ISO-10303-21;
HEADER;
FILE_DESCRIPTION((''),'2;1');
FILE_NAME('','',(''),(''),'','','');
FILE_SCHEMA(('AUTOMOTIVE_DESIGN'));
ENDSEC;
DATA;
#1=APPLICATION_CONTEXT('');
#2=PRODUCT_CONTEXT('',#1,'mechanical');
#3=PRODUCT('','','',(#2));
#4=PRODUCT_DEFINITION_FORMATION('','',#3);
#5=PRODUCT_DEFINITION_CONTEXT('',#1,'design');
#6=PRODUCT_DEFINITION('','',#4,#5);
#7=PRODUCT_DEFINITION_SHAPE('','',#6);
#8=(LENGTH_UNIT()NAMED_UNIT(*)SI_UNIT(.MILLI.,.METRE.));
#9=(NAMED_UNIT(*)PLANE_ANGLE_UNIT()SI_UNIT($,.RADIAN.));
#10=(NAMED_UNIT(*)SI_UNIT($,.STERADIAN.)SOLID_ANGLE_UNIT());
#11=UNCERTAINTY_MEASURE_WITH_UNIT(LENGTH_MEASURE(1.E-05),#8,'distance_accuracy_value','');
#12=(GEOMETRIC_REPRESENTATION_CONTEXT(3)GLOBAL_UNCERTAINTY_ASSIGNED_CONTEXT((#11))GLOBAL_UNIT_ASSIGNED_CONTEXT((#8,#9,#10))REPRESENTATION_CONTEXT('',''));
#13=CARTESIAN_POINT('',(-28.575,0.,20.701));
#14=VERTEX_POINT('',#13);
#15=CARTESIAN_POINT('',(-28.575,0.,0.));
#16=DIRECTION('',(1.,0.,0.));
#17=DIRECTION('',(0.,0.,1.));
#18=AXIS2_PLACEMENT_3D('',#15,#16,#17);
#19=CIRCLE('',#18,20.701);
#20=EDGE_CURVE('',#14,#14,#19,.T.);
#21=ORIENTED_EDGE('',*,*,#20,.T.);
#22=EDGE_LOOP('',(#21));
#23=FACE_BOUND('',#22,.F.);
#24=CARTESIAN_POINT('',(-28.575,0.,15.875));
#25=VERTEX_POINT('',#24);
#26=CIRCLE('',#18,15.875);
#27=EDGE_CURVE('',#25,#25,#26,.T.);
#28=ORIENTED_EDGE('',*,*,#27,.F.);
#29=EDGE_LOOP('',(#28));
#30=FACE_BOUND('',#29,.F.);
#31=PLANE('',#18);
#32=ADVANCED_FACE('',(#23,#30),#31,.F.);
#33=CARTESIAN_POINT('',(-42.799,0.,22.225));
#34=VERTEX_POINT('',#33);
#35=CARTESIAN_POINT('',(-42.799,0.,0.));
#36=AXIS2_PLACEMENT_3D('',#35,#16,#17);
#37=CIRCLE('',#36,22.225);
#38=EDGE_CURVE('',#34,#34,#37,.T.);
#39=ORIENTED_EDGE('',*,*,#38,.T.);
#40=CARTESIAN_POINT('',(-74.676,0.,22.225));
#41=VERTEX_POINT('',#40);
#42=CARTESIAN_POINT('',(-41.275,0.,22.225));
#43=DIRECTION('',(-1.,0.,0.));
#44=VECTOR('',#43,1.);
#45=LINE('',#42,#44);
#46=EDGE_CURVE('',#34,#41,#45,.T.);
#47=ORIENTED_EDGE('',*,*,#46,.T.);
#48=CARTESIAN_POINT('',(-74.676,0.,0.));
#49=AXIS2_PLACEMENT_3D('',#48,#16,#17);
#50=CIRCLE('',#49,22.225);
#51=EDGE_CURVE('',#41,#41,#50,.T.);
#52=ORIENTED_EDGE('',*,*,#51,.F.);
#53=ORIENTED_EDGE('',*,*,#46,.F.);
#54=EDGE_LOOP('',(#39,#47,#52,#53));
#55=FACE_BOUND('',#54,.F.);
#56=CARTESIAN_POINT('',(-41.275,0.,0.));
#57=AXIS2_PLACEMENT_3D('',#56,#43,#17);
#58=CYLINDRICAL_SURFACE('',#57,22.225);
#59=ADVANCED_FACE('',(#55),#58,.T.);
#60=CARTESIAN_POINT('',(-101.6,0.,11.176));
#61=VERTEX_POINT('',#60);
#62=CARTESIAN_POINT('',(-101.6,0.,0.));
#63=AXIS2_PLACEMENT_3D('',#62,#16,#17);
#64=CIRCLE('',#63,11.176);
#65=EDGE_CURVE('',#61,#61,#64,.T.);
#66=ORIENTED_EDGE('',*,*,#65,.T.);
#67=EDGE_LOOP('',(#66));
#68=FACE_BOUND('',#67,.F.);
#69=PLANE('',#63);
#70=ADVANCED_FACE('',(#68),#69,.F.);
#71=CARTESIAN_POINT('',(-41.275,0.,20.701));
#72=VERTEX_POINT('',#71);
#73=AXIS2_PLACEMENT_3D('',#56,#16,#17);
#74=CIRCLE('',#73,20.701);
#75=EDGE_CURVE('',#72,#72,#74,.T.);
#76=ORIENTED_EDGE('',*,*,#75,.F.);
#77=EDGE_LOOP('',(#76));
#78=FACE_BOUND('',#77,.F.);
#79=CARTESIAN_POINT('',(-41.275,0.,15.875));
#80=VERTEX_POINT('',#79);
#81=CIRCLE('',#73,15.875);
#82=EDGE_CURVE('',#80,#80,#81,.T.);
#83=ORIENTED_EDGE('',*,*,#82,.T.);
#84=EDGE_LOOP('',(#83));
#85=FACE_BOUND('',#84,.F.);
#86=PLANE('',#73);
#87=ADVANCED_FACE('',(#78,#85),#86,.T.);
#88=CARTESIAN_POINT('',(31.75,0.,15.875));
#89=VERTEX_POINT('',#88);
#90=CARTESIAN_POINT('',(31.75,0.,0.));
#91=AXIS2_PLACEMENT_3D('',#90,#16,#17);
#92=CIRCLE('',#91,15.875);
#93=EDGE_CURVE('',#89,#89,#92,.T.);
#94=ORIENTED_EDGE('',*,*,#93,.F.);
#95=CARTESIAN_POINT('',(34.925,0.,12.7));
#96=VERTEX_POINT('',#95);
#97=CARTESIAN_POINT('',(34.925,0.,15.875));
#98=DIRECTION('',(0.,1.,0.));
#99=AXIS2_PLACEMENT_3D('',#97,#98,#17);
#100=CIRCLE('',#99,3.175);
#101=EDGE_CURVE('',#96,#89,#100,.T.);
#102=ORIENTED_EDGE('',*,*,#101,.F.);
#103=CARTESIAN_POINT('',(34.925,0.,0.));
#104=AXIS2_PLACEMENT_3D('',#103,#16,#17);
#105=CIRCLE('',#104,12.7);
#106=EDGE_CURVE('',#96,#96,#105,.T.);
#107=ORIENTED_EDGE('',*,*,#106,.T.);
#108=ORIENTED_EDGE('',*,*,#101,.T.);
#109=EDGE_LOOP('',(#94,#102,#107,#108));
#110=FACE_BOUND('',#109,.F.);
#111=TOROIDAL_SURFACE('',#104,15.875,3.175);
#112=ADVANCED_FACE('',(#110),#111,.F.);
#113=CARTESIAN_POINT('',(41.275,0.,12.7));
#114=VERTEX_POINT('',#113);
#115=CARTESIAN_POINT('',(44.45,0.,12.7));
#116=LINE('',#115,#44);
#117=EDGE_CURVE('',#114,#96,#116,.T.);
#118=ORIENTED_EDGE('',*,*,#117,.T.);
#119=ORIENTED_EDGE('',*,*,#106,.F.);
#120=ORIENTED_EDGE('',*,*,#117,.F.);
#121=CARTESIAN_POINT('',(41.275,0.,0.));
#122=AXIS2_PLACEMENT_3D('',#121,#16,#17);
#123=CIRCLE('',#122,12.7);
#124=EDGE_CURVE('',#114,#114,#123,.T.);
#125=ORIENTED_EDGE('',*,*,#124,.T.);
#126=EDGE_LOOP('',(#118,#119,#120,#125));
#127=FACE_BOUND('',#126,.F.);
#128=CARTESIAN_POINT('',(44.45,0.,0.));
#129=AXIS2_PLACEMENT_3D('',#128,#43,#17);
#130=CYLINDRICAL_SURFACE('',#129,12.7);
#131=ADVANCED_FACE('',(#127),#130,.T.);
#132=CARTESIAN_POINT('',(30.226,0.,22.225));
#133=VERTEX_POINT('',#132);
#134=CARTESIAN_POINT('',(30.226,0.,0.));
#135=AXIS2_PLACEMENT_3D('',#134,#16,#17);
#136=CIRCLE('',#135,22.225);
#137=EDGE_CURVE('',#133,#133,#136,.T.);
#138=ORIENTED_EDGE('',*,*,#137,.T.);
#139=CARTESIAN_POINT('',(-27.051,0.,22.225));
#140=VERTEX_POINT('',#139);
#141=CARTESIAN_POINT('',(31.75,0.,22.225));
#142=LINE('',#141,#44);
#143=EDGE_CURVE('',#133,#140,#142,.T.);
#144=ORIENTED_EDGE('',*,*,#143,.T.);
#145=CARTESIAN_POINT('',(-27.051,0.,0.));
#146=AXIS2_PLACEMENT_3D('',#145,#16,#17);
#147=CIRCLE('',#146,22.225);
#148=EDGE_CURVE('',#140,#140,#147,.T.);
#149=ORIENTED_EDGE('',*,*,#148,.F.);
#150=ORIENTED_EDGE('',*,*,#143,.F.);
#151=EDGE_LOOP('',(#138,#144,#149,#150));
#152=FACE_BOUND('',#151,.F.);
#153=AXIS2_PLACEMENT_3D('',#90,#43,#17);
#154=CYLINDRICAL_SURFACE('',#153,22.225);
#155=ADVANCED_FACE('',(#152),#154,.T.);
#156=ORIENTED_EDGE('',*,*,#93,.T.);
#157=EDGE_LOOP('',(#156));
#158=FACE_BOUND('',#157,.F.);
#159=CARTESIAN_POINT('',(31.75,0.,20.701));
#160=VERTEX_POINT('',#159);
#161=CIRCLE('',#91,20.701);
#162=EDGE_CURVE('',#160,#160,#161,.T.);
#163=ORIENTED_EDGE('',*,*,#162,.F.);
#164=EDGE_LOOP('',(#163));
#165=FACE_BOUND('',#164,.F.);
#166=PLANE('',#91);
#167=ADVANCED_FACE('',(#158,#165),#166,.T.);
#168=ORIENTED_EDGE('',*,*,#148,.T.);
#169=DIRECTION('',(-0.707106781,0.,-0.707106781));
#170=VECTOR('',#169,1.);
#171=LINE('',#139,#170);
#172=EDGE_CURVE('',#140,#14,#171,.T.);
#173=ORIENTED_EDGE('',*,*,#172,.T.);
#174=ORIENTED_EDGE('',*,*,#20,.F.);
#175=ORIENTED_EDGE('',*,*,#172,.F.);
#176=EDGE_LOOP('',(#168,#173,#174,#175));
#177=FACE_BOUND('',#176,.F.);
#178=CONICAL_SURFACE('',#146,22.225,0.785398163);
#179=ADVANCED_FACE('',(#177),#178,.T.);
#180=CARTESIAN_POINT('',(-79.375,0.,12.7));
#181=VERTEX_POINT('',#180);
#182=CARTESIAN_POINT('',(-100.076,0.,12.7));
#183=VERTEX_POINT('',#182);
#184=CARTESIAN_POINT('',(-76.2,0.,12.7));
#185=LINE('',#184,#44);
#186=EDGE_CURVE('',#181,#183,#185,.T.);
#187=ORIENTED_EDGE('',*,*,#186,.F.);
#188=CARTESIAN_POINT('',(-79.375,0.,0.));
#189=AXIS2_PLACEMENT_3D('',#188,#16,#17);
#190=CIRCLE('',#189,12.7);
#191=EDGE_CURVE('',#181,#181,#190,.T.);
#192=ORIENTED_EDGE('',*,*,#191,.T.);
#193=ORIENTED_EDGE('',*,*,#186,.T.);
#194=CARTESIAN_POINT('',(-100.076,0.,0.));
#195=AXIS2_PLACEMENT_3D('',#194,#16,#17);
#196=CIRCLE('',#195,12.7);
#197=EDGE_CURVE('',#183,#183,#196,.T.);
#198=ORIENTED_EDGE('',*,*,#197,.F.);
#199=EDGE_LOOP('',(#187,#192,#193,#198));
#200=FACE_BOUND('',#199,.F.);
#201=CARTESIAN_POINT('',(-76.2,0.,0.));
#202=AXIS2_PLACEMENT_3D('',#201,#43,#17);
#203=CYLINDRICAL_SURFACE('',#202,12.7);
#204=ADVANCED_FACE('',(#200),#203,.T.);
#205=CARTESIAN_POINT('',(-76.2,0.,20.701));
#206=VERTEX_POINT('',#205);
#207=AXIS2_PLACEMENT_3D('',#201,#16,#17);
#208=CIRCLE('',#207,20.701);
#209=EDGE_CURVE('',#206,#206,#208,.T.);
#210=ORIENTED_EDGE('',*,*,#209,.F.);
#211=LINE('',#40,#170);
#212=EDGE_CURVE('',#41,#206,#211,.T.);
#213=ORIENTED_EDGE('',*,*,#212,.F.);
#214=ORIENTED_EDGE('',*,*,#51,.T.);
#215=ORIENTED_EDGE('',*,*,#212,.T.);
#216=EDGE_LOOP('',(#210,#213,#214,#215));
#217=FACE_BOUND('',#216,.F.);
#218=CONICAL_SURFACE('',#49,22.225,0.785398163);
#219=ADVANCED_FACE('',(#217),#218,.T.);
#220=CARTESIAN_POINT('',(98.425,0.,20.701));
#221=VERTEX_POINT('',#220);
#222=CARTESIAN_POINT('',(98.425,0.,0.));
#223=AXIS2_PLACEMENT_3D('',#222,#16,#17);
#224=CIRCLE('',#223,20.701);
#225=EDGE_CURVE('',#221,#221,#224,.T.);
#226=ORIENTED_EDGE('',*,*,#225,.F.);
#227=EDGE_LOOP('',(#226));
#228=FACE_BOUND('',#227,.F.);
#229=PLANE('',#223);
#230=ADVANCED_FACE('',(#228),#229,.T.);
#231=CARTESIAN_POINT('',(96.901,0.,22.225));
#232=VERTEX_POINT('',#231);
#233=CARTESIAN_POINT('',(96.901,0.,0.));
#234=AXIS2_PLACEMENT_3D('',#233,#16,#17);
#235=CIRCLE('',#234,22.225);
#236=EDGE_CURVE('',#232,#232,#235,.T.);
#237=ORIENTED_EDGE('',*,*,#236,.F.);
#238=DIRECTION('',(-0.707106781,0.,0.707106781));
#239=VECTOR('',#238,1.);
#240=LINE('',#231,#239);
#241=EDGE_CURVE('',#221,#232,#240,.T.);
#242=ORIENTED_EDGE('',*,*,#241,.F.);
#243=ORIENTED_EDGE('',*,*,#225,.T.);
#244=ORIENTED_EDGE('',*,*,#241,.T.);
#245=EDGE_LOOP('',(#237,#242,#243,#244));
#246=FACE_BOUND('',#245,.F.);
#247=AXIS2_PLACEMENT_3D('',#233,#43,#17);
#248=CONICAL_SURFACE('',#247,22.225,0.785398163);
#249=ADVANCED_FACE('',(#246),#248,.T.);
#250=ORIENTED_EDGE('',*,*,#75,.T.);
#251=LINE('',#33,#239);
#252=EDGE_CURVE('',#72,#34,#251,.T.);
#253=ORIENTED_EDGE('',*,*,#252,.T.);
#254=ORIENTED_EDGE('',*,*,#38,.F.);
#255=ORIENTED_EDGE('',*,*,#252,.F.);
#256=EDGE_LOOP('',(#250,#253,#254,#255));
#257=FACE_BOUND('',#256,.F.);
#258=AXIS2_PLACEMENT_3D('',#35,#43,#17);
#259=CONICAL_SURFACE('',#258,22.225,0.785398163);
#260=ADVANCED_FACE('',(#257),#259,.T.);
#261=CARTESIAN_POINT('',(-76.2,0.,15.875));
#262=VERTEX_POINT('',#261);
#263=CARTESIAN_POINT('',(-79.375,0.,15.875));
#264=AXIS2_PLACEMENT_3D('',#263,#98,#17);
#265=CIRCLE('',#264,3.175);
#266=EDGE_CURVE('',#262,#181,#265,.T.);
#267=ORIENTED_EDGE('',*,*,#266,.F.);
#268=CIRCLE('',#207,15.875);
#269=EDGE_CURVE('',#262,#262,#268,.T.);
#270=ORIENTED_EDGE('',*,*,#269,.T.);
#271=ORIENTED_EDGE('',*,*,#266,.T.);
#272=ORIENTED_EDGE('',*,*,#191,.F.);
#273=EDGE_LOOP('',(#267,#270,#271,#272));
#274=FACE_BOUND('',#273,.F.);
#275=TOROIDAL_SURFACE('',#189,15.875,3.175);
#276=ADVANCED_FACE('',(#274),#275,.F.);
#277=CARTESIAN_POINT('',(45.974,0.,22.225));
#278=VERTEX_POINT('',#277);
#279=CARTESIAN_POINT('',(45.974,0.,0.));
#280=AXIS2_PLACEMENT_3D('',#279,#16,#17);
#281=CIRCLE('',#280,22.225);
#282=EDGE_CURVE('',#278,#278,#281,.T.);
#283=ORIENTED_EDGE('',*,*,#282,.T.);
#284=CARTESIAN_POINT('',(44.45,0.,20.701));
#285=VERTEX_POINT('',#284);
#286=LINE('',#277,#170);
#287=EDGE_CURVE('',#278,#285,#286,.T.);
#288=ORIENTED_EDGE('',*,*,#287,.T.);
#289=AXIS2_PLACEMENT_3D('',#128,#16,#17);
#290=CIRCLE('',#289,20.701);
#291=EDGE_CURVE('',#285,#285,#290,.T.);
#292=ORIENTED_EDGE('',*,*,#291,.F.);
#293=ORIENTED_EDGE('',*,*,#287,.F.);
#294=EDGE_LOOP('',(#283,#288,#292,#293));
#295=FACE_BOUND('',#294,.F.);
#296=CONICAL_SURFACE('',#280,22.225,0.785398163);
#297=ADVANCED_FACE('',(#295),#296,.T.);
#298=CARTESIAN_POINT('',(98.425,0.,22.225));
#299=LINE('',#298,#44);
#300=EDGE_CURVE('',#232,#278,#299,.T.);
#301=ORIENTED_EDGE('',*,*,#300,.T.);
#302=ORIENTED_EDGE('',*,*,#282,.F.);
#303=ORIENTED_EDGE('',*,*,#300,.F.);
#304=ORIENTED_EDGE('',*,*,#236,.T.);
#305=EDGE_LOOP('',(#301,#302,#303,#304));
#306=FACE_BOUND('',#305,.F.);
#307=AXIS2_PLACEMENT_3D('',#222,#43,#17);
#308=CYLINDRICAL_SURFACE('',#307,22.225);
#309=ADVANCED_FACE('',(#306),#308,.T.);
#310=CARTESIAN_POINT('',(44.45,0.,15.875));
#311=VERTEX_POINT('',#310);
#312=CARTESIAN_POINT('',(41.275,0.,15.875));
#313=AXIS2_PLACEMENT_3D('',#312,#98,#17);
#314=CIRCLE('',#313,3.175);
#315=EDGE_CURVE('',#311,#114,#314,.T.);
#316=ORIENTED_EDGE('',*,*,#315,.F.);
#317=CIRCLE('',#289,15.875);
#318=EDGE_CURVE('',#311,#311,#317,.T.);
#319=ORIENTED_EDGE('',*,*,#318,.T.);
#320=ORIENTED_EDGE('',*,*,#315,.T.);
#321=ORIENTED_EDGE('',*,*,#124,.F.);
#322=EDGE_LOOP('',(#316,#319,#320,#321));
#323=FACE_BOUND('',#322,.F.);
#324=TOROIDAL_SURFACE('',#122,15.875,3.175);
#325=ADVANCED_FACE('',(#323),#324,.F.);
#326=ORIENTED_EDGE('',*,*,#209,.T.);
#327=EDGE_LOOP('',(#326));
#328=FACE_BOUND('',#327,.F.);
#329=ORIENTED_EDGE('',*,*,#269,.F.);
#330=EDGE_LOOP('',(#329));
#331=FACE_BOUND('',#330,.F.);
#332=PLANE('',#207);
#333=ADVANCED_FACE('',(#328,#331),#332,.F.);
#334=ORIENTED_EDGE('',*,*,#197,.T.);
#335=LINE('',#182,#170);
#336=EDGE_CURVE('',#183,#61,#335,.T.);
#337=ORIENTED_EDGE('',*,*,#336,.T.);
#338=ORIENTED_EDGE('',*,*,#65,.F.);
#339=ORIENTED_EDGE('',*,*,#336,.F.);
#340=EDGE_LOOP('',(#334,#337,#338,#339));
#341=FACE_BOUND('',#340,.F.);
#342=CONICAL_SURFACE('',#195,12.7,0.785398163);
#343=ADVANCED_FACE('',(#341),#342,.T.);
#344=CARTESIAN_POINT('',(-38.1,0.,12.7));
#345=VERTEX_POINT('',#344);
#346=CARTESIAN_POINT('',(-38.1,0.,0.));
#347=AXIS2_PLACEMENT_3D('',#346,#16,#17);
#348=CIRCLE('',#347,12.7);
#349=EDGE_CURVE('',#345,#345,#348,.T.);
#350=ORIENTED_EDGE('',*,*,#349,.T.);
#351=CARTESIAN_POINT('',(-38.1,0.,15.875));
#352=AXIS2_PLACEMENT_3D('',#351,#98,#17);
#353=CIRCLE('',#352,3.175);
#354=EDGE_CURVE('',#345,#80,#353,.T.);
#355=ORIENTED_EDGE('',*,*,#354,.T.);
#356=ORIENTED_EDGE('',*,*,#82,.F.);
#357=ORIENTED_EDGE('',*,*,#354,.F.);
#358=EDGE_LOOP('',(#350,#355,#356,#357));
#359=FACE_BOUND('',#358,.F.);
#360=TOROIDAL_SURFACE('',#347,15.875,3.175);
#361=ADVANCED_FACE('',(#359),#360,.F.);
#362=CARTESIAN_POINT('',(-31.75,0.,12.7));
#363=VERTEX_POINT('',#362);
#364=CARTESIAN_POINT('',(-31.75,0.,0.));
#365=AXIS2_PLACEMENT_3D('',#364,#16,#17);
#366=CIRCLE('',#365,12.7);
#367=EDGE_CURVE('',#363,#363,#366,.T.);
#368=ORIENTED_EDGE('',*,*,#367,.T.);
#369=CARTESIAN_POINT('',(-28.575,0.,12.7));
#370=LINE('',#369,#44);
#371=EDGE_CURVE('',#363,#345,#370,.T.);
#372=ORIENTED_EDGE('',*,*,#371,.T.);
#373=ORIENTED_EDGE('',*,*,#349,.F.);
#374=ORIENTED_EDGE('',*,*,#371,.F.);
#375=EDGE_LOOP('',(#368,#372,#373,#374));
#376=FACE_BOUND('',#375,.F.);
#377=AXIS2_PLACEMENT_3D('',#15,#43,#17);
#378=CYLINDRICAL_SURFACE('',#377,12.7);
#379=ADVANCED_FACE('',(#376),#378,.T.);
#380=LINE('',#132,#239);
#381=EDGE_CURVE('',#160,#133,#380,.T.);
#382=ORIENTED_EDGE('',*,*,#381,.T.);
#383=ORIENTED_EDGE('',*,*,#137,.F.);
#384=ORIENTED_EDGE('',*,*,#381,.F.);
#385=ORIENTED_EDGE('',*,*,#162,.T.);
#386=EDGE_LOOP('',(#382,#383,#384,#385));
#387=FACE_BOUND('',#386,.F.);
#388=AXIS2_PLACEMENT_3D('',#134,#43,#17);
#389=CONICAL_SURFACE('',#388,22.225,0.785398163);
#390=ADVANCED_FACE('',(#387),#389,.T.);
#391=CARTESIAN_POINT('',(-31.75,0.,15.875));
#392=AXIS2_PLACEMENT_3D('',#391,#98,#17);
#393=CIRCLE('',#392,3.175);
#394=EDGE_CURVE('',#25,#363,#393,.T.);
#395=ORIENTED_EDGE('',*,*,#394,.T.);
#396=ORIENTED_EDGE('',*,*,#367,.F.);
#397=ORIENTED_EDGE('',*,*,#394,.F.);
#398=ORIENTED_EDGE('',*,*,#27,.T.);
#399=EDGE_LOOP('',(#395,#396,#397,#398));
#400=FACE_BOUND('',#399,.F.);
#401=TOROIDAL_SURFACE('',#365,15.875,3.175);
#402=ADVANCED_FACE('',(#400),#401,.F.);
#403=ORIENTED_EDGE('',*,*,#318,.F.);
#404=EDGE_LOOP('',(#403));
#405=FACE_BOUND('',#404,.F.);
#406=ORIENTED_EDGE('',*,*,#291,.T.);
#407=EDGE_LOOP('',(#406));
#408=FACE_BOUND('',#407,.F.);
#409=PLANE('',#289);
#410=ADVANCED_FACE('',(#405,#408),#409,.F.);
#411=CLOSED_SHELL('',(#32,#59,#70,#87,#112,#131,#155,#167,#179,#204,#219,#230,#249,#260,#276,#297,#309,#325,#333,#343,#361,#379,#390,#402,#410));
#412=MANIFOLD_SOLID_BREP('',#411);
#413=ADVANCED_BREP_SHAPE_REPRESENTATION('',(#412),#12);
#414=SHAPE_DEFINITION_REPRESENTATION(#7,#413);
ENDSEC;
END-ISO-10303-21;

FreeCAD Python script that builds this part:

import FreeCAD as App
import Part
import Sketcher

V = App.Vector
Q = App.Units.Quantity


def edges_at(feature, points):
    """Names of the edges that pass closest to the given points."""
    edges = feature.Shape.Edges
    near = lambda p: min(range(len(edges)), key=lambda i: edges[i].distToShape(Part.Vertex(*p))[0])
    return sorted({f"Edge{near(p) + 1}" for p in points})


def add_polygon(sketch, points):
    """Adds a closed chain of lines whose ends are joined by coincident constraints."""
    first, n = sketch.GeometryCount, len(points)
    for a, b in zip(points, points[1:] + points[:1]):
        sketch.addGeometry(Part.LineSegment(App.Vector(*a, 0), App.Vector(*b, 0)), False)
    for i in range(n):
        sketch.addConstraint(Sketcher.Constraint("Coincident", first + i, 2, first + (i + 1) % n, 1))

doc = App.newDocument("Part")
params = doc.addObject("Spreadsheet::Sheet", "Params")
for row, (alias, value) in enumerate([
    ("sketch1_width", "1 in"),
    ("sketch1_width2", "0.5 in"),
    ("sketch1_width3", "7.875 in"),
    ("sketch1_width4", "2.125 in"),
    ("sketch1_height", "0.875 in"),
    ("revolution_angle", "360 deg"),
    ("chamfer_size", "0.06 in"),
    ("fillet_radius", "0.125 in"),
], start=1):
    params.set(f"A{row}", alias)
    params.set(f"B{row}", "=" + value)
    params.setAlias(f"B{row}", alias)

body = doc.addObject("PartDesign::Body", "Body")

# Sketch on XZ plane
sketch1 = body.newObject("Sketcher::SketchObject", "Sketch")
sketch1.AttachmentSupport = (doc.getObject("XZ_Plane"), [""])
sketch1.MapMode = "FlatFace"
add_polygon(sketch1, [(-102, 0), (98, 0), (98, 22), (44, 22), (44, 13), (32, 13), (32, 22), (-29, 22), (-29, 13), (-41, 13), (-41, 22), (-76, 22), (-76, 13), (-102, 13)])  # lines 0-13
sketch1.addConstraint([
    Sketcher.Constraint("Horizontal", 0),
    Sketcher.Constraint("Vertical", 1),
    Sketcher.Constraint("Horizontal", 2),
    Sketcher.Constraint("Vertical", 3),
    Sketcher.Constraint("Horizontal", 4),
    Sketcher.Constraint("Vertical", 5),
    Sketcher.Constraint("Horizontal", 6),
    Sketcher.Constraint("Vertical", 7),
    Sketcher.Constraint("Horizontal", 8),
    Sketcher.Constraint("Vertical", 9),
    Sketcher.Constraint("Horizontal", 10),
    Sketcher.Constraint("Vertical", 11),
    Sketcher.Constraint("Horizontal", 12),
    Sketcher.Constraint("Vertical", 13),
    Sketcher.Constraint("PointOnObject", 0, 2, -1),
    Sketcher.Constraint("Horizontal", 2, 2, 5, 2),
    Sketcher.Constraint("Horizontal", 4, 2, 7, 2),
    Sketcher.Constraint("Horizontal", 6, 2, 9, 2),
    Sketcher.Constraint("Horizontal", 8, 2, 11, 2),
    Sketcher.Constraint("Equal", 4, 8),
    Sketcher.Constraint("Equal", 8, 13),
    Sketcher.Constraint("DistanceX", 12, 2, 12, 1, Q("1 in")),
    Sketcher.Constraint("DistanceX", 4, 2, 4, 1, Q("0.5 in")),
    Sketcher.Constraint("DistanceX", 10, 2, -1, 1, Q("3 in")),
    Sketcher.Constraint("DistanceX", 6, 2, 1, 2, Q("5 in")),
    Sketcher.Constraint("DistanceX", 0, 1, 0, 2, Q("7.875 in")),
    Sketcher.Constraint("DistanceX", 2, 2, 2, 1, Q("2.125 in")),
    Sketcher.Constraint("DistanceY", 1, 1, 1, 2, Q("0.875 in")),
])
sketch1.setExpression("Constraints[35]", "Params.sketch1_width")
sketch1.setExpression("Constraints[36]", "Params.sketch1_width2")
sketch1.setExpression("Constraints[39]", "Params.sketch1_width3")
sketch1.setExpression("Constraints[40]", "Params.sketch1_width4")
sketch1.setExpression("Constraints[41]", "Params.sketch1_height")
revolution = body.newObject("PartDesign::Revolution", "Revolution")
revolution.Profile = sketch1
revolution.ReferenceAxis = (sketch1, ["H_Axis"])
revolution.setExpression("Angle", "Params.revolution_angle")
doc.recompute()

chamfer = body.newObject("PartDesign::Chamfer", "Chamfer")
chamfer.Base = (revolution, edges_at(revolution, [
    (-101.6, 0, -12.7),
    (-76.2, 0, -22.225),
    (-41.275, 0, -22.225),
    (-28.575, 0, -22.225),
    (31.75, 0, -22.225),
    (44.45, 0, -22.225),
    (98.425, 0, -22.225),
]))
chamfer.setExpression("Size", "Params.chamfer_size")
doc.recompute()

fillet = body.newObject("PartDesign::Fillet", "Fillet")
fillet.Base = (chamfer, edges_at(chamfer, [
    (-76.2, 0, -12.7),
    (-28.575, 0, -12.7),
    (44.45, 0, -12.7),
    (-41.275, 0, -12.7),
    (31.75, 0, -12.7),
]))
fillet.setExpression("Radius", "Params.fillet_radius")

doc.recompute()
